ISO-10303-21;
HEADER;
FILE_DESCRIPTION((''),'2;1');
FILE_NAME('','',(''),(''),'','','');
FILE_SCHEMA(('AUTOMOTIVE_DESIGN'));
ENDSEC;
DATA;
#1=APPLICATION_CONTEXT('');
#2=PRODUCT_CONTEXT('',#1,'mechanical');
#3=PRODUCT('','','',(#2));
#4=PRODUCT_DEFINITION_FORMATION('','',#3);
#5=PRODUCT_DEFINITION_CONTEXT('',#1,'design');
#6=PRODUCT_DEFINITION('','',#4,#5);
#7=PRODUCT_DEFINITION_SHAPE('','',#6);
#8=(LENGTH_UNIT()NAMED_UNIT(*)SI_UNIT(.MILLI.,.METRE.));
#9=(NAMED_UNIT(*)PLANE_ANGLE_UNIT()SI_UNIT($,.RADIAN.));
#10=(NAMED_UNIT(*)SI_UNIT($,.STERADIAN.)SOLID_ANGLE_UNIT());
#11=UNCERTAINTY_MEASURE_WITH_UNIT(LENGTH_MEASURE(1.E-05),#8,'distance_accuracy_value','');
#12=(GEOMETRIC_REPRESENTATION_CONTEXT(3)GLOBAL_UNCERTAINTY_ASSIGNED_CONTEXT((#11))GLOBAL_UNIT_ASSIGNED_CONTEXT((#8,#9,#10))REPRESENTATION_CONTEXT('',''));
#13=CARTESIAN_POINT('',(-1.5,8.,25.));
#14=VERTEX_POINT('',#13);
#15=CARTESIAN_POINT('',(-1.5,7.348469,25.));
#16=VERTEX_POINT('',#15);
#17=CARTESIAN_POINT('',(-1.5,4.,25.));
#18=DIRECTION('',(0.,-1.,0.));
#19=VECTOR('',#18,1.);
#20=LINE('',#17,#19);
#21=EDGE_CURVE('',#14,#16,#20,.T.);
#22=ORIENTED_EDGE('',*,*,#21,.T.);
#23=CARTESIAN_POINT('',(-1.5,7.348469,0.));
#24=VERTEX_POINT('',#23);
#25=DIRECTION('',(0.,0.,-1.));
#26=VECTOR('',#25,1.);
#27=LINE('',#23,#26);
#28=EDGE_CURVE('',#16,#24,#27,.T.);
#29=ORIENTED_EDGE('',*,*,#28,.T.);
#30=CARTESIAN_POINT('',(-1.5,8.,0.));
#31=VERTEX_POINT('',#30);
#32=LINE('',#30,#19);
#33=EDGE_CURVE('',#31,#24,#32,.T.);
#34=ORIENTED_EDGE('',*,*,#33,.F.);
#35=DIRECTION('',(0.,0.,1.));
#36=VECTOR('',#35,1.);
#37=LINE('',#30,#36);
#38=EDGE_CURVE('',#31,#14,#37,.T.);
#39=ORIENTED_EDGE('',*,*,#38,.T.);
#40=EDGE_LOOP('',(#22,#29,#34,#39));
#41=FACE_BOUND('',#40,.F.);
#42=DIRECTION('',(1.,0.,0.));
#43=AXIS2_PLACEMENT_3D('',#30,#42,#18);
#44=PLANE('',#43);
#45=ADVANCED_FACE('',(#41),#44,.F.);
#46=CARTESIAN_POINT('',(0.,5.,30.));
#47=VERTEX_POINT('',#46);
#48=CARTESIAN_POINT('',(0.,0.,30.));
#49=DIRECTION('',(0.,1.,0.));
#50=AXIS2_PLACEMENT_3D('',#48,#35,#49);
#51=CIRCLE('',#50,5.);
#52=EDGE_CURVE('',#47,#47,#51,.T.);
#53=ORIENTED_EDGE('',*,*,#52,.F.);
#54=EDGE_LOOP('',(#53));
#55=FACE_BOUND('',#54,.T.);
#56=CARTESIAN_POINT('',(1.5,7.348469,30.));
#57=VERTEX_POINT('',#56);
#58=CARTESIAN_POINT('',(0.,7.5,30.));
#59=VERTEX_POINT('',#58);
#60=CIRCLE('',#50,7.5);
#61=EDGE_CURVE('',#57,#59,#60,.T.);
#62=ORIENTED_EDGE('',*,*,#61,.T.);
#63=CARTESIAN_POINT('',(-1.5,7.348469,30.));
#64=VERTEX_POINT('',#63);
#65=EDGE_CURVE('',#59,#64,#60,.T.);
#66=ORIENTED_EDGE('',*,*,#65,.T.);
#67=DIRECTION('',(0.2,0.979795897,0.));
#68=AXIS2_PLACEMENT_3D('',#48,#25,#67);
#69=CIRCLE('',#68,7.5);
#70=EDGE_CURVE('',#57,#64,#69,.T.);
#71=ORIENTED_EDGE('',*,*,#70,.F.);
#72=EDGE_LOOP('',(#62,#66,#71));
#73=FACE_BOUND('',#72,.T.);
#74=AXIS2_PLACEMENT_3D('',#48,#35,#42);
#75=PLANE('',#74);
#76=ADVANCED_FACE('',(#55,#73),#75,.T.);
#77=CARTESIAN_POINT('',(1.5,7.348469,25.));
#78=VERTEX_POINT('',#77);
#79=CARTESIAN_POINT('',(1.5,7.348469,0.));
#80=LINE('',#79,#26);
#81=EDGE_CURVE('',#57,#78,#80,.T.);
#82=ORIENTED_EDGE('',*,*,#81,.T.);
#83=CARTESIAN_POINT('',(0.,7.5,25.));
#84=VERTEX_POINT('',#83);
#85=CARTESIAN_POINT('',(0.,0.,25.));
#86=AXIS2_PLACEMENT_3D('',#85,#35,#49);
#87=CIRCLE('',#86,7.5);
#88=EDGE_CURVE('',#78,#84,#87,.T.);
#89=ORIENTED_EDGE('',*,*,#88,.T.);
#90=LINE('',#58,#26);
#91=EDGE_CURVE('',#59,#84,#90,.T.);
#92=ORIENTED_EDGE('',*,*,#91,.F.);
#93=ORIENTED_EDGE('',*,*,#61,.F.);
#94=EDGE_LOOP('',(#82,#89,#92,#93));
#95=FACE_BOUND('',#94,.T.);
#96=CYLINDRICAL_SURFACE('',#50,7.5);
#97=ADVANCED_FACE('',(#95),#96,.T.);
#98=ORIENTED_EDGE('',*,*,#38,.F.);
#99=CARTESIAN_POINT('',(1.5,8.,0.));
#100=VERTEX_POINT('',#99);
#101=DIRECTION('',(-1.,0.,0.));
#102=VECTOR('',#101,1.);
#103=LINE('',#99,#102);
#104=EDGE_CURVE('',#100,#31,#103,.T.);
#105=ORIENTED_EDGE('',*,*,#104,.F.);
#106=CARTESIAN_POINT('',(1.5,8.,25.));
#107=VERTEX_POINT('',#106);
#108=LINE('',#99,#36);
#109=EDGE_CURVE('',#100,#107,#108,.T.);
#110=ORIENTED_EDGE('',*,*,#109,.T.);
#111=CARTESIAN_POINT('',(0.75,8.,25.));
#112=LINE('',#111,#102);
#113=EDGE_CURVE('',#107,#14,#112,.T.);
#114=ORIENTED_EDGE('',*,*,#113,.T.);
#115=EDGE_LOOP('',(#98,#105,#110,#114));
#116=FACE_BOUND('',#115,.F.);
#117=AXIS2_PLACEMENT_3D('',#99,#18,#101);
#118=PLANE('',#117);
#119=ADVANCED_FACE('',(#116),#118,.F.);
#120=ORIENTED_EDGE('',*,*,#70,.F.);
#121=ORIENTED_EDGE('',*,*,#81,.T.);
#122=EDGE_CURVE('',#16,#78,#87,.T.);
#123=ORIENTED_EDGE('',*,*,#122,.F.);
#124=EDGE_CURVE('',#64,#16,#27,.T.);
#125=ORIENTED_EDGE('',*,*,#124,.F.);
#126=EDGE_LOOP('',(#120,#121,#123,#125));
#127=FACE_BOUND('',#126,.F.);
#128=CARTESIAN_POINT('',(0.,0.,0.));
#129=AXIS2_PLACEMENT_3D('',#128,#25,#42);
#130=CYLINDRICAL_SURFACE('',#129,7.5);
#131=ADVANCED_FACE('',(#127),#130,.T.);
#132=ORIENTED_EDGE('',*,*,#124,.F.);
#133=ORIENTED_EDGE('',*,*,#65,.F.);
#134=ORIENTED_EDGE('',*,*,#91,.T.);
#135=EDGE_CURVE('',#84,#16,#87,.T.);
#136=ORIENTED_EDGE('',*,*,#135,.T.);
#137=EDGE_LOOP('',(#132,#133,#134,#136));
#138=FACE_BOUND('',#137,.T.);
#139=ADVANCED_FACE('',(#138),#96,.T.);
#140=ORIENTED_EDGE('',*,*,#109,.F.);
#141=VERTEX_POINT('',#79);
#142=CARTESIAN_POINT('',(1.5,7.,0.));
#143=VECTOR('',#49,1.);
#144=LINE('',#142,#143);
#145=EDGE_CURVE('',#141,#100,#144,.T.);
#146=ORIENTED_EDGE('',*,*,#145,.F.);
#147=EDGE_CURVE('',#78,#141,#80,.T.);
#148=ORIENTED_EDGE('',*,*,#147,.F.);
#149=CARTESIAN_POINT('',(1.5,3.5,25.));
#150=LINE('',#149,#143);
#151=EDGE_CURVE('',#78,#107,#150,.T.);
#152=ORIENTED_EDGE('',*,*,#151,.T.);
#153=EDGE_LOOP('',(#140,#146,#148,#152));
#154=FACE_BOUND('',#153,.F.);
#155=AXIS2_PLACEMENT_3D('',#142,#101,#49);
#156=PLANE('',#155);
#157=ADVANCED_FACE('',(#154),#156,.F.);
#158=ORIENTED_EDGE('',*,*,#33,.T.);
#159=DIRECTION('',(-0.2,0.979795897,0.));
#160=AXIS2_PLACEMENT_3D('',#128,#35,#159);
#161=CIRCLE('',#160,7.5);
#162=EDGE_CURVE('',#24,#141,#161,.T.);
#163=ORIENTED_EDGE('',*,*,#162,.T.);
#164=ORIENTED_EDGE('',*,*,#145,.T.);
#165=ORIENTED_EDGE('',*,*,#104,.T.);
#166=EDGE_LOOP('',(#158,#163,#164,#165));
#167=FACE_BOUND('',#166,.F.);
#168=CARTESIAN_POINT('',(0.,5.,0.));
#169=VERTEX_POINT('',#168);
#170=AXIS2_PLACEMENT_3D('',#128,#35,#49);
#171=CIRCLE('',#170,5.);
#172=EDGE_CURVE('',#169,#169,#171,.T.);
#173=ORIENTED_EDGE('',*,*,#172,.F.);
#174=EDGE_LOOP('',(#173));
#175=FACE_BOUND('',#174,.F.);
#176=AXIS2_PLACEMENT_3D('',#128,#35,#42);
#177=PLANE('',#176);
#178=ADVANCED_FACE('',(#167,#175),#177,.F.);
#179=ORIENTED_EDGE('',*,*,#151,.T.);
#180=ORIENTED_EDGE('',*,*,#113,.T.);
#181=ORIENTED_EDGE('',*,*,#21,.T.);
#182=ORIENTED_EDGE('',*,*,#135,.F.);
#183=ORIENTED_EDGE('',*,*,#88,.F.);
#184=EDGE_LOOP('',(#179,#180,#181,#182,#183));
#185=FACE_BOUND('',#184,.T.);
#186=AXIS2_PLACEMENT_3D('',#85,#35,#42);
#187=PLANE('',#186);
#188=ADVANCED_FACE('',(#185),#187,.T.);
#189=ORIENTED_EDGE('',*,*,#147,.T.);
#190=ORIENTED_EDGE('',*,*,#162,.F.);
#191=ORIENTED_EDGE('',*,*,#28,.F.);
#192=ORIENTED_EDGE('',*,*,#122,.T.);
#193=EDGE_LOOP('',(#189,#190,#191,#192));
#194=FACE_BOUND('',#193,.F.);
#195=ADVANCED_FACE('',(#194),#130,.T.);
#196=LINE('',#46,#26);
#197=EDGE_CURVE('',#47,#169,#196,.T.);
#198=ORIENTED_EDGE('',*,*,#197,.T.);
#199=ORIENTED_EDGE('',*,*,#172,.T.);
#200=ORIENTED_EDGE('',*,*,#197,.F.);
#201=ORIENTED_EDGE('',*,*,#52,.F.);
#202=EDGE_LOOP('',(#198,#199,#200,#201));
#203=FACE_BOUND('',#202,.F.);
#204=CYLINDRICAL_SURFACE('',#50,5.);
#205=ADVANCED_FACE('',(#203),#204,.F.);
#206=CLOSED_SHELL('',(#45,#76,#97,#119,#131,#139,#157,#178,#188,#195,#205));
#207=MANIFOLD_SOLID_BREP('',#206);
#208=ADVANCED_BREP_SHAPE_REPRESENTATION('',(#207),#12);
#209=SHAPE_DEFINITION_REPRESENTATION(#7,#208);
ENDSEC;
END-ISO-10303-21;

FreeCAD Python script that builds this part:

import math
import FreeCAD as App
import Part
import Sketcher
from FreeCAD import Vector

doc = App.newDocument("Part")
body = doc.addObject("PartDesign::Body", "Body")

# Sketch on XY plane
sketch1 = doc.addObject("Sketcher::SketchObject", "Sketch")
body.addObject(sketch1)
sketch1.AttachmentSupport = (doc.XY_Plane, [""])
sketch1.MapMode = "FlatFace"
sketch1.addGeometry(Part.LineSegment(Vector(1.5, 7.348469, 0), Vector(1.5, 8, 0)), False)
sketch1.addGeometry(Part.LineSegment(Vector(1.5, 8, 0), Vector(-1.5, 8, 0)), False)
sketch1.addGeometry(Part.LineSegment(Vector(-1.5, 8, 0), Vector(-1.5, 7.348469, 0)), False)
sketch1.addGeometry(Part.ArcOfCircle(Part.Circle(Vector(0, 0, 0), Vector(0, 0, 1), 7.5), math.radians(101.536959), math.radians(438.463041)), False)
sketch1.addConstraint(Sketcher.Constraint("Coincident", 0, 2, 1, 1))
sketch1.addConstraint(Sketcher.Constraint("Coincident", 1, 2, 2, 1))
sketch1.addConstraint(Sketcher.Constraint("Coincident", 2, 2, 3, 1))
sketch1.addConstraint(Sketcher.Constraint("Coincident", 3, 2, 0, 1))
sketch1.addConstraint(Sketcher.Constraint("Vertical", 0))
sketch1.addConstraint(Sketcher.Constraint("Horizontal", 1))
sketch1.addConstraint(Sketcher.Constraint("Vertical", 2))
sketch1.addConstraint(Sketcher.Constraint("Coincident", 3, 3, -1, 1))
sketch1.addConstraint(Sketcher.Constraint("Horizontal", 2, 2, 3, 2))
sketch1.addConstraint(Sketcher.Constraint("DistanceX", -1, 1, 0, 2, 1.5))
sketch1.addConstraint(Sketcher.Constraint("Radius", 3, 7.5))
sketch1.addConstraint(Sketcher.Constraint("DistanceY", -1, 1, 0, 2, 8.0))
pad1 = doc.addObject("PartDesign::Pad", "Pad")
body.addObject(pad1)
pad1.Profile = sketch1
pad1.Length = 30

# Sketch on XY plane
sketch2 = doc.addObject("Sketcher::SketchObject", "Sketch001")
body.addObject(sketch2)
sketch2.AttachmentSupport = (doc.XY_Plane, [""])
sketch2.MapMode = "FlatFace"
sketch2.AttachmentOffset = App.Placement(Vector(0, 0, 30), App.Rotation())
sketch2.addGeometry(Part.Circle(Vector(0, 0, 0), Vector(0, 0, 1), 9), False)
sketch2.addGeometry(Part.Circle(Vector(0, 0, 0), Vector(0, 0, 1), 7.5), False)
sketch2.addConstraint(Sketcher.Constraint("Coincident", 0, 3, -1, 1))
sketch2.addConstraint(Sketcher.Constraint("Coincident", 1, 3, -1, 1))
sketch2.addConstraint(Sketcher.Constraint("Diameter", 0, 18.0))
sketch2.addConstraint(Sketcher.Constraint("Diameter", 1, 15.0))
pocket1 = doc.addObject("PartDesign::Pocket", "Pocket")
body.addObject(pocket1)
pocket1.Profile = sketch2
pocket1.Length = 5

# Sketch on XY plane
sketch3 = doc.addObject("Sketcher::SketchObject", "Sketch002")
body.addObject(sketch3)
sketch3.AttachmentSupport = (doc.XY_Plane, [""])
sketch3.MapMode = "FlatFace"
sketch3.AttachmentOffset = App.Placement(Vector(0, 0, 30), App.Rotation())
sketch3.addGeometry(Part.Circle(Vector(0, 0, 0), Vector(0, 0, 1), 5), False)
sketch3.addConstraint(Sketcher.Constraint("Coincident", 0, 3, -1, 1))
sketch3.addConstraint(Sketcher.Constraint("Diameter", 0, 10.0))
pocket2 = doc.addObject("PartDesign::Pocket", "Pocket001")
body.addObject(pocket2)
pocket2.Profile = sketch3
pocket2.Type = "UpToFirst"

doc.recompute()
